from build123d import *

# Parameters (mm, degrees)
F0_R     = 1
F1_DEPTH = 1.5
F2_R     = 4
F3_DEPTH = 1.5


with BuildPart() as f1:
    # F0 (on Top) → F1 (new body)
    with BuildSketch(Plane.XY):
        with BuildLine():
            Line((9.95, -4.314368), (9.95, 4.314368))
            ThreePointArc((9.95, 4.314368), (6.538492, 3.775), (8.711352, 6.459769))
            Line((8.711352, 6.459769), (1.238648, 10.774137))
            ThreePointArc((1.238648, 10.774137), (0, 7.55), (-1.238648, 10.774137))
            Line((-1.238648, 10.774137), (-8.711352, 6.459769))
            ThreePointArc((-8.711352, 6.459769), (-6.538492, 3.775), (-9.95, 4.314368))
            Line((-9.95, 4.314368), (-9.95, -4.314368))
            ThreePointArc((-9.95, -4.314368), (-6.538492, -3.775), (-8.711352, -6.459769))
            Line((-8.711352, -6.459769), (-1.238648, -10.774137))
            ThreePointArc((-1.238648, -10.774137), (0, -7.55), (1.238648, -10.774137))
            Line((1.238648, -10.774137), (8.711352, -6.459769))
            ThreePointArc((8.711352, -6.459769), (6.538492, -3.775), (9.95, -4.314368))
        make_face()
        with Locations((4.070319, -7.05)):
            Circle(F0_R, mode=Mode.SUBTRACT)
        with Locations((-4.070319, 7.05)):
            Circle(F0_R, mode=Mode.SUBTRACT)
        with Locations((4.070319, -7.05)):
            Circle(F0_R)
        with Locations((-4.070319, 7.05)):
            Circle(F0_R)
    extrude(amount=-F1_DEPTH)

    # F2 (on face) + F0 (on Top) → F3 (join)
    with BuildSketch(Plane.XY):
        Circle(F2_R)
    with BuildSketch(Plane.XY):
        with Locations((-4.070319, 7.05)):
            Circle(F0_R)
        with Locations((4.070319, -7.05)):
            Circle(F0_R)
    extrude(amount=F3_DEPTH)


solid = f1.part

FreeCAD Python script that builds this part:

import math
import FreeCAD as App
import Part
import Sketcher

V = App.Vector
Q = App.Units.Quantity

doc = App.newDocument("Part")
body = doc.addObject("PartDesign::Body", "Body")

# Sketch on XY plane
sketch1 = doc.addObject("Sketcher::SketchObject", "Sketch")
body.addObject(sketch1)
sketch1.AttachmentSupport = (doc.XY_Plane, [""])
sketch1.MapMode = "FlatFace"
sketch1.addGeometry(Part.LineSegment(V(9.9, -4.3, 0), V(9.9, 4.3, 0)), False)
sketch1.addGeometry(Part.ArcOfCircle(Part.Circle(V(8.1, 4.7, 0), V(0, 0, 1), 1.8), math.radians(72), math.radians(348)), False)
sketch1.addGeometry(Part.LineSegment(V(8.7, 6.5, 0), V(1.2, 10.8, 0)), False)
sketch1.addGeometry(Part.ArcOfCircle(Part.Circle(V(0, 9.4, 0), V(0, 0, 1), 1.9), math.radians(132), math.radians(408)), False)
sketch1.addGeometry(Part.LineSegment(V(-1.2, 10.8, 0), V(-8.7, 6.5, 0)), False)
sketch1.addGeometry(Part.ArcOfCircle(Part.Circle(V(-8.1, 4.7, 0), V(0, 0, 1), 1.8), math.radians(-168), math.radians(108)), False)
sketch1.addGeometry(Part.LineSegment(V(-9.9, 4.3, 0), V(-9.9, -4.3, 0)), False)
sketch1.addGeometry(Part.ArcOfCircle(Part.Circle(V(-8.1, -4.7, 0), V(0, 0, 1), 1.8), math.radians(-108), math.radians(168)), False)
sketch1.addGeometry(Part.LineSegment(V(-8.7, -6.5, 0), V(-1.2, -10.8, 0)), False)
sketch1.addGeometry(Part.ArcOfCircle(Part.Circle(V(0, -9.4, 0), V(0, 0, 1), 1.9), math.radians(-48), math.radians(228)), False)
sketch1.addGeometry(Part.LineSegment(V(1.2, -10.8, 0), V(8.7, -6.5, 0)), False)
sketch1.addGeometry(Part.ArcOfCircle(Part.Circle(V(8.1, -4.7, 0), V(0, 0, 1), 1.8), math.radians(12), math.radians(288)), False)
sketch1.addConstraint(Sketcher.Constraint("Coincident", 0, 2, 1, 2))
sketch1.addConstraint(Sketcher.Constraint("Coincident", 1, 1, 2, 1))
sketch1.addConstraint(Sketcher.Constraint("Coincident", 2, 2, 3, 2))
sketch1.addConstraint(Sketcher.Constraint("Coincident", 3, 1, 4, 1))
sketch1.addConstraint(Sketcher.Constraint("Coincident", 4, 2, 5, 2))
sketch1.addConstraint(Sketcher.Constraint("Coincident", 5, 1, 6, 1))
sketch1.addConstraint(Sketcher.Constraint("Coincident", 6, 2, 7, 2))
sketch1.addConstraint(Sketcher.Constraint("Coincident", 7, 1, 8, 1))
sketch1.addConstraint(Sketcher.Constraint("Coincident", 8, 2, 9, 2))
sketch1.addConstraint(Sketcher.Constraint("Coincident", 9, 1, 10, 1))
sketch1.addConstraint(Sketcher.Constraint("Coincident", 10, 2, 11, 2))
sketch1.addConstraint(Sketcher.Constraint("Coincident", 11, 1, 0, 1))
sketch1.addConstraint(Sketcher.Constraint("Vertical", 0))
sketch1.addConstraint(Sketcher.Constraint("Vertical", 6))
sketch1.addConstraint(Sketcher.Constraint("Equal", 1, 3))
sketch1.addConstraint(Sketcher.Constraint("Equal", 3, 5))
sketch1.addConstraint(Sketcher.Constraint("Equal", 5, 7))
sketch1.addConstraint(Sketcher.Constraint("Equal", 7, 9))
sketch1.addConstraint(Sketcher.Constraint("Equal", 9, 11))
sketch1.addConstraint(Sketcher.Constraint("Symmetric", 1, 3, 7, 3, -1, 1))
sketch1.addConstraint(Sketcher.Constraint("Symmetric", 3, 3, 9, 3, -1, 1))
sketch1.addConstraint(Sketcher.Constraint("Symmetric", 5, 3, 11, 3, -1, 1))
sketch1.addConstraint(Sketcher.Constraint("Symmetric", 1, 3, 5, 3, -2))
sketch1.addConstraint(Sketcher.Constraint("Symmetric", 2, 2, 3, 1, -2))
sketch1.addConstraint(Sketcher.Constraint("Parallel", 2, 8))
sketch1.addConstraint(Sketcher.Constraint("Parallel", 4, 10))
sketch1.addConstraint(Sketcher.Constraint("Horizontal", 1, 1, 4, 2))
sketch1.addConstraint(Sketcher.Constraint("Horizontal", 0, 2, 5, 1))
sketch1.addConstraint(Sketcher.Constraint("Horizontal", 8, 2, 9, 1))
sketch1.addConstraint(Sketcher.Constraint("Vertical", 4, 2, 7, 1))
sketch1.addConstraint(Sketcher.Constraint("Angle", 2, Q("149.999998 deg")))
sketch1.addConstraint(Sketcher.Constraint("Radius", 1, Q("1.85 mm")))
sketch1.addConstraint(Sketcher.Constraint("DistanceY", -1, 1, 1, 3, Q("4.7 mm")))
sketch1.addConstraint(Sketcher.Constraint("DistanceY", -1, 1, 3, 3, Q("9.4 mm")))
sketch1.addConstraint(Sketcher.Constraint("DistanceX", -1, 1, 0, 2, Q("9.95 mm")))
sketch1.addConstraint(Sketcher.Constraint("DistanceX", 3, 1, 1, 1, Q("9.95 mm")))
sketch1.addConstraint(Sketcher.Constraint("DistanceY", 0, 2, 1, 1, Q("2.145401 mm")))
pad1 = doc.addObject("PartDesign::Pad", "Pad")
body.addObject(pad1)
pad1.Profile = sketch1
pad1.Length = 1.5
pad1.Reversed = True

# Sketch on XY plane
sketch2 = doc.addObject("Sketcher::SketchObject", "Sketch001")
body.addObject(sketch2)
sketch2.AttachmentSupport = (doc.XY_Plane, [""])
sketch2.MapMode = "FlatFace"
sketch2.addGeometry(Part.Circle(V(0, 0, 0), V(0, 0, 1), 4), False)
sketch2.addGeometry(Part.Circle(V(-4.1, 7, 0), V(0, 0, 1), 1), False)
sketch2.addGeometry(Part.Circle(V(4.1, -7, 0), V(0, 0, 1), 1), False)
sketch2.addConstraint(Sketcher.Constraint("Coincident", 0, 3, -1, 1))
sketch2.addConstraint(Sketcher.Constraint("Equal", 1, 2))
sketch2.addConstraint(Sketcher.Constraint("Symmetric", 1, 3, 2, 3, -1, 1))
sketch2.addConstraint(Sketcher.Constraint("Diameter", 0, Q("8 mm")))
sketch2.addConstraint(Sketcher.Constraint("Diameter", 1, Q("2 mm")))
sketch2.addConstraint(Sketcher.Constraint("DistanceY", 2, 3, 1, 3, Q("14.1 mm")))
sketch2.addConstraint(Sketcher.Constraint("DistanceX", 1, 3, -1, 1, Q("4.070319 mm")))
pad2 = doc.addObject("PartDesign::Pad", "Pad001")
body.addObject(pad2)
pad2.Profile = sketch2
pad2.Length = 1.5

doc.recompute()
